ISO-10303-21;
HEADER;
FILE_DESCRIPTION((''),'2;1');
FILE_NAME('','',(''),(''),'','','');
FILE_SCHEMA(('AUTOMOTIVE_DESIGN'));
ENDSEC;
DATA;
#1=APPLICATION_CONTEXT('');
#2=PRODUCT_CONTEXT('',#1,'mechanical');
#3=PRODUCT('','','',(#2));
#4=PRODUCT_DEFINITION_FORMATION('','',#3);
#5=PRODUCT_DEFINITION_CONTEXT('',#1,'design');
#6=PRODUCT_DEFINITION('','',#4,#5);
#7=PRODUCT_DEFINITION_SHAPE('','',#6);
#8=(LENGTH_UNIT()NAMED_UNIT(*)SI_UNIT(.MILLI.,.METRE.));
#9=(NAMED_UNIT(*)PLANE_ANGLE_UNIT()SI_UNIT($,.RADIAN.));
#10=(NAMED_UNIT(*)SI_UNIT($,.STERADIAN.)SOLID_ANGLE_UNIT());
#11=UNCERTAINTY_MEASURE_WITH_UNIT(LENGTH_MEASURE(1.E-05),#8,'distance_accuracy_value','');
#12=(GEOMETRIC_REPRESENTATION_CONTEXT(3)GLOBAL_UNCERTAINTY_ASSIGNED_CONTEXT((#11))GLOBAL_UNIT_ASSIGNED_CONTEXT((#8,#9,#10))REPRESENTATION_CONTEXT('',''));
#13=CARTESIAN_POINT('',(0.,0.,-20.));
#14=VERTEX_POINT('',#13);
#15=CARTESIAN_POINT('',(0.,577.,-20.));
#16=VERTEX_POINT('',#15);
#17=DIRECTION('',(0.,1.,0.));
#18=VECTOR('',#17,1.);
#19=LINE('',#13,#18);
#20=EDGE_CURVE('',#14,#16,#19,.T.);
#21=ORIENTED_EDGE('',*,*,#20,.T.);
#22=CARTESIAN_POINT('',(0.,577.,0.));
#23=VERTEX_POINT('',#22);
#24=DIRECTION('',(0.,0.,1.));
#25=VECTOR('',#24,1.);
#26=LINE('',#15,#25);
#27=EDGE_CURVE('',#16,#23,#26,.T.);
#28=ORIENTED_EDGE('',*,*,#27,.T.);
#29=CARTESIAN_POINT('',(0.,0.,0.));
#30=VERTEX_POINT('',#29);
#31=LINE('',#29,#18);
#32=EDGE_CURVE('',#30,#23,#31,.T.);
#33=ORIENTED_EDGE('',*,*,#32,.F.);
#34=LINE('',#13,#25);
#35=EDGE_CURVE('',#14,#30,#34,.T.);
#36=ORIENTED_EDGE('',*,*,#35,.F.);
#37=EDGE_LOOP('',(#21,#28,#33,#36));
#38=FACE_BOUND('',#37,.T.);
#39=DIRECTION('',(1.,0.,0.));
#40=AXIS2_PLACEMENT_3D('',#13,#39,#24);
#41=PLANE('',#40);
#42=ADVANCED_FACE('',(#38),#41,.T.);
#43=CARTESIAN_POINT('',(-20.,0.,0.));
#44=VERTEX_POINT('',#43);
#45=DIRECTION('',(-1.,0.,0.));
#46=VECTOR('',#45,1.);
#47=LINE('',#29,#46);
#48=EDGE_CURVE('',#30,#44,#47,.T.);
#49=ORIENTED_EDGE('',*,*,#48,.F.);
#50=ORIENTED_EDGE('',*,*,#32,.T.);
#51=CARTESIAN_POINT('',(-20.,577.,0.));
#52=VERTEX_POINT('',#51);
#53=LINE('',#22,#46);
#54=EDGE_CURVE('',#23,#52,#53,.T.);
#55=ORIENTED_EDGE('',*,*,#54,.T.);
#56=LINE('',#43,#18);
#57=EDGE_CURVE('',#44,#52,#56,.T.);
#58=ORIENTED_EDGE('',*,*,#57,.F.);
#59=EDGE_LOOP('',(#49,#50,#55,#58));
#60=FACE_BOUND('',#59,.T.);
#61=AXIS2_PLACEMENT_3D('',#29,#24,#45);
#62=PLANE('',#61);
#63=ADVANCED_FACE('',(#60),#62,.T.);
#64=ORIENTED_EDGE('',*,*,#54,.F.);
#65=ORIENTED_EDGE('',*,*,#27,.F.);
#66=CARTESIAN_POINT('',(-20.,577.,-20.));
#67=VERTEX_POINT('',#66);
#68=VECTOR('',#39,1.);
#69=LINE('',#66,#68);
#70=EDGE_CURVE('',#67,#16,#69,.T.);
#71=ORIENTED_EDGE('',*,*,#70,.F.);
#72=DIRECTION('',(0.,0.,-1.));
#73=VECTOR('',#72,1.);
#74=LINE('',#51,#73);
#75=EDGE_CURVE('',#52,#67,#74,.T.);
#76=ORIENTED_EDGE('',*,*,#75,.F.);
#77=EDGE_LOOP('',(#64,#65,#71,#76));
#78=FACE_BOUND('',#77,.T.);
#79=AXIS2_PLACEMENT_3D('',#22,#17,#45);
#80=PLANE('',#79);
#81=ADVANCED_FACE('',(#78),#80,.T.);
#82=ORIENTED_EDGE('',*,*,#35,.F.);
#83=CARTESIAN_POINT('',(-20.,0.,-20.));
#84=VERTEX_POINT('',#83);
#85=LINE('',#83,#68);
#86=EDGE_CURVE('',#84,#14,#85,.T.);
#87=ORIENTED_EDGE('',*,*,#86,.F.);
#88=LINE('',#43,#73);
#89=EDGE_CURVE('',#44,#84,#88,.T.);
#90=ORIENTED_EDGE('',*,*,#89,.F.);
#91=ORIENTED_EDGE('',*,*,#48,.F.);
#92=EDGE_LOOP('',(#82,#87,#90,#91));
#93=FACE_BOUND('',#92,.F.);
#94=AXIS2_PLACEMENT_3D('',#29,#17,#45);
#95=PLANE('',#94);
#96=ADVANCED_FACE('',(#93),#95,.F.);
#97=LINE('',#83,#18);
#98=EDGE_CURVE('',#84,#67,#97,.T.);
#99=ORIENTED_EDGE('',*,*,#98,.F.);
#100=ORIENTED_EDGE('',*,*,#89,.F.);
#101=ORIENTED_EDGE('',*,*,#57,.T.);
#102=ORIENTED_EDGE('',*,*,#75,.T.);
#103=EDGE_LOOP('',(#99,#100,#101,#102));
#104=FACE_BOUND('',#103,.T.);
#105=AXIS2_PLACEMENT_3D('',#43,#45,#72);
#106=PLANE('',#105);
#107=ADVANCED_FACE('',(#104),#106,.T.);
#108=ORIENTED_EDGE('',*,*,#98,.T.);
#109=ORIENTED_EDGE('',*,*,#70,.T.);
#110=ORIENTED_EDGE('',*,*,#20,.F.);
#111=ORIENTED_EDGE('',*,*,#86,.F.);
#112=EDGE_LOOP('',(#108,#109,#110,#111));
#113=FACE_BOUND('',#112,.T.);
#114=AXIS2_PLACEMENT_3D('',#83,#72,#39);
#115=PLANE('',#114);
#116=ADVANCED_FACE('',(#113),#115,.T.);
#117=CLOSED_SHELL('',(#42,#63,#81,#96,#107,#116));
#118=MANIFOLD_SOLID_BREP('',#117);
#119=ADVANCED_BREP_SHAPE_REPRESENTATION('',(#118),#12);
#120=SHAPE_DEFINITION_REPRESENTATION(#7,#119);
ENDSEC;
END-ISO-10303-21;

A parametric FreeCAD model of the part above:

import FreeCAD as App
import Part
import Sketcher
from FreeCAD import Vector
Q = App.Units.Quantity

doc = App.newDocument("Part")
params = doc.addObject("Spreadsheet::Sheet", "Params")
for row, (alias, value) in enumerate([
    ("sketch1_width", "20 mm"),
    ("pad1_length", "577 mm"),
], start=1):
    params.set(f"A{row}", alias)
    params.set(f"B{row}", "=" + value)
    params.setAlias(f"B{row}", alias)

body = doc.addObject("PartDesign::Body", "Body")

# Sketch on XZ plane
sketch1 = body.newObject("Sketcher::SketchObject", "Sketch")
sketch1.AttachmentSupport = (doc.getObject("XZ_Plane"), [""])
sketch1.MapMode = "FlatFace"
sketch1.addGeometry([
    Part.LineSegment(Vector(-20, 0, 0), Vector(0, 0, 0)),
    Part.LineSegment(Vector(0, 0, 0), Vector(0, -20, 0)),
    Part.LineSegment(Vector(0, -20, 0), Vector(-20, -20, 0)),
    Part.LineSegment(Vector(-20, -20, 0), Vector(-20, 0, 0)),
], False)
sketch1.addConstraint([
    Sketcher.Constraint("Coincident", 0, 2, 1, 1),
    Sketcher.Constraint("Coincident", 1, 2, 2, 1),
    Sketcher.Constraint("Coincident", 2, 2, 3, 1),
    Sketcher.Constraint("Coincident", 3, 2, 0, 1),
    Sketcher.Constraint("Horizontal", 0),
    Sketcher.Constraint("Vertical", 1),
    Sketcher.Constraint("Horizontal", 2),
    Sketcher.Constraint("Vertical", 3),
    Sketcher.Constraint("Coincident", 0, 2, -1, 1),
    Sketcher.Constraint("Equal", 2, 1),
    Sketcher.Constraint("DistanceX", 0, 1, 0, 2, Q("20 mm")),
])
sketch1.setExpression("Constraints[10]", "Params.sketch1_width")
pad1 = body.newObject("PartDesign::Pad", "Pad")
pad1.Profile = sketch1
pad1.setExpression("Length", "Params.pad1_length")
pad1.Reversed = True

doc.recompute()
